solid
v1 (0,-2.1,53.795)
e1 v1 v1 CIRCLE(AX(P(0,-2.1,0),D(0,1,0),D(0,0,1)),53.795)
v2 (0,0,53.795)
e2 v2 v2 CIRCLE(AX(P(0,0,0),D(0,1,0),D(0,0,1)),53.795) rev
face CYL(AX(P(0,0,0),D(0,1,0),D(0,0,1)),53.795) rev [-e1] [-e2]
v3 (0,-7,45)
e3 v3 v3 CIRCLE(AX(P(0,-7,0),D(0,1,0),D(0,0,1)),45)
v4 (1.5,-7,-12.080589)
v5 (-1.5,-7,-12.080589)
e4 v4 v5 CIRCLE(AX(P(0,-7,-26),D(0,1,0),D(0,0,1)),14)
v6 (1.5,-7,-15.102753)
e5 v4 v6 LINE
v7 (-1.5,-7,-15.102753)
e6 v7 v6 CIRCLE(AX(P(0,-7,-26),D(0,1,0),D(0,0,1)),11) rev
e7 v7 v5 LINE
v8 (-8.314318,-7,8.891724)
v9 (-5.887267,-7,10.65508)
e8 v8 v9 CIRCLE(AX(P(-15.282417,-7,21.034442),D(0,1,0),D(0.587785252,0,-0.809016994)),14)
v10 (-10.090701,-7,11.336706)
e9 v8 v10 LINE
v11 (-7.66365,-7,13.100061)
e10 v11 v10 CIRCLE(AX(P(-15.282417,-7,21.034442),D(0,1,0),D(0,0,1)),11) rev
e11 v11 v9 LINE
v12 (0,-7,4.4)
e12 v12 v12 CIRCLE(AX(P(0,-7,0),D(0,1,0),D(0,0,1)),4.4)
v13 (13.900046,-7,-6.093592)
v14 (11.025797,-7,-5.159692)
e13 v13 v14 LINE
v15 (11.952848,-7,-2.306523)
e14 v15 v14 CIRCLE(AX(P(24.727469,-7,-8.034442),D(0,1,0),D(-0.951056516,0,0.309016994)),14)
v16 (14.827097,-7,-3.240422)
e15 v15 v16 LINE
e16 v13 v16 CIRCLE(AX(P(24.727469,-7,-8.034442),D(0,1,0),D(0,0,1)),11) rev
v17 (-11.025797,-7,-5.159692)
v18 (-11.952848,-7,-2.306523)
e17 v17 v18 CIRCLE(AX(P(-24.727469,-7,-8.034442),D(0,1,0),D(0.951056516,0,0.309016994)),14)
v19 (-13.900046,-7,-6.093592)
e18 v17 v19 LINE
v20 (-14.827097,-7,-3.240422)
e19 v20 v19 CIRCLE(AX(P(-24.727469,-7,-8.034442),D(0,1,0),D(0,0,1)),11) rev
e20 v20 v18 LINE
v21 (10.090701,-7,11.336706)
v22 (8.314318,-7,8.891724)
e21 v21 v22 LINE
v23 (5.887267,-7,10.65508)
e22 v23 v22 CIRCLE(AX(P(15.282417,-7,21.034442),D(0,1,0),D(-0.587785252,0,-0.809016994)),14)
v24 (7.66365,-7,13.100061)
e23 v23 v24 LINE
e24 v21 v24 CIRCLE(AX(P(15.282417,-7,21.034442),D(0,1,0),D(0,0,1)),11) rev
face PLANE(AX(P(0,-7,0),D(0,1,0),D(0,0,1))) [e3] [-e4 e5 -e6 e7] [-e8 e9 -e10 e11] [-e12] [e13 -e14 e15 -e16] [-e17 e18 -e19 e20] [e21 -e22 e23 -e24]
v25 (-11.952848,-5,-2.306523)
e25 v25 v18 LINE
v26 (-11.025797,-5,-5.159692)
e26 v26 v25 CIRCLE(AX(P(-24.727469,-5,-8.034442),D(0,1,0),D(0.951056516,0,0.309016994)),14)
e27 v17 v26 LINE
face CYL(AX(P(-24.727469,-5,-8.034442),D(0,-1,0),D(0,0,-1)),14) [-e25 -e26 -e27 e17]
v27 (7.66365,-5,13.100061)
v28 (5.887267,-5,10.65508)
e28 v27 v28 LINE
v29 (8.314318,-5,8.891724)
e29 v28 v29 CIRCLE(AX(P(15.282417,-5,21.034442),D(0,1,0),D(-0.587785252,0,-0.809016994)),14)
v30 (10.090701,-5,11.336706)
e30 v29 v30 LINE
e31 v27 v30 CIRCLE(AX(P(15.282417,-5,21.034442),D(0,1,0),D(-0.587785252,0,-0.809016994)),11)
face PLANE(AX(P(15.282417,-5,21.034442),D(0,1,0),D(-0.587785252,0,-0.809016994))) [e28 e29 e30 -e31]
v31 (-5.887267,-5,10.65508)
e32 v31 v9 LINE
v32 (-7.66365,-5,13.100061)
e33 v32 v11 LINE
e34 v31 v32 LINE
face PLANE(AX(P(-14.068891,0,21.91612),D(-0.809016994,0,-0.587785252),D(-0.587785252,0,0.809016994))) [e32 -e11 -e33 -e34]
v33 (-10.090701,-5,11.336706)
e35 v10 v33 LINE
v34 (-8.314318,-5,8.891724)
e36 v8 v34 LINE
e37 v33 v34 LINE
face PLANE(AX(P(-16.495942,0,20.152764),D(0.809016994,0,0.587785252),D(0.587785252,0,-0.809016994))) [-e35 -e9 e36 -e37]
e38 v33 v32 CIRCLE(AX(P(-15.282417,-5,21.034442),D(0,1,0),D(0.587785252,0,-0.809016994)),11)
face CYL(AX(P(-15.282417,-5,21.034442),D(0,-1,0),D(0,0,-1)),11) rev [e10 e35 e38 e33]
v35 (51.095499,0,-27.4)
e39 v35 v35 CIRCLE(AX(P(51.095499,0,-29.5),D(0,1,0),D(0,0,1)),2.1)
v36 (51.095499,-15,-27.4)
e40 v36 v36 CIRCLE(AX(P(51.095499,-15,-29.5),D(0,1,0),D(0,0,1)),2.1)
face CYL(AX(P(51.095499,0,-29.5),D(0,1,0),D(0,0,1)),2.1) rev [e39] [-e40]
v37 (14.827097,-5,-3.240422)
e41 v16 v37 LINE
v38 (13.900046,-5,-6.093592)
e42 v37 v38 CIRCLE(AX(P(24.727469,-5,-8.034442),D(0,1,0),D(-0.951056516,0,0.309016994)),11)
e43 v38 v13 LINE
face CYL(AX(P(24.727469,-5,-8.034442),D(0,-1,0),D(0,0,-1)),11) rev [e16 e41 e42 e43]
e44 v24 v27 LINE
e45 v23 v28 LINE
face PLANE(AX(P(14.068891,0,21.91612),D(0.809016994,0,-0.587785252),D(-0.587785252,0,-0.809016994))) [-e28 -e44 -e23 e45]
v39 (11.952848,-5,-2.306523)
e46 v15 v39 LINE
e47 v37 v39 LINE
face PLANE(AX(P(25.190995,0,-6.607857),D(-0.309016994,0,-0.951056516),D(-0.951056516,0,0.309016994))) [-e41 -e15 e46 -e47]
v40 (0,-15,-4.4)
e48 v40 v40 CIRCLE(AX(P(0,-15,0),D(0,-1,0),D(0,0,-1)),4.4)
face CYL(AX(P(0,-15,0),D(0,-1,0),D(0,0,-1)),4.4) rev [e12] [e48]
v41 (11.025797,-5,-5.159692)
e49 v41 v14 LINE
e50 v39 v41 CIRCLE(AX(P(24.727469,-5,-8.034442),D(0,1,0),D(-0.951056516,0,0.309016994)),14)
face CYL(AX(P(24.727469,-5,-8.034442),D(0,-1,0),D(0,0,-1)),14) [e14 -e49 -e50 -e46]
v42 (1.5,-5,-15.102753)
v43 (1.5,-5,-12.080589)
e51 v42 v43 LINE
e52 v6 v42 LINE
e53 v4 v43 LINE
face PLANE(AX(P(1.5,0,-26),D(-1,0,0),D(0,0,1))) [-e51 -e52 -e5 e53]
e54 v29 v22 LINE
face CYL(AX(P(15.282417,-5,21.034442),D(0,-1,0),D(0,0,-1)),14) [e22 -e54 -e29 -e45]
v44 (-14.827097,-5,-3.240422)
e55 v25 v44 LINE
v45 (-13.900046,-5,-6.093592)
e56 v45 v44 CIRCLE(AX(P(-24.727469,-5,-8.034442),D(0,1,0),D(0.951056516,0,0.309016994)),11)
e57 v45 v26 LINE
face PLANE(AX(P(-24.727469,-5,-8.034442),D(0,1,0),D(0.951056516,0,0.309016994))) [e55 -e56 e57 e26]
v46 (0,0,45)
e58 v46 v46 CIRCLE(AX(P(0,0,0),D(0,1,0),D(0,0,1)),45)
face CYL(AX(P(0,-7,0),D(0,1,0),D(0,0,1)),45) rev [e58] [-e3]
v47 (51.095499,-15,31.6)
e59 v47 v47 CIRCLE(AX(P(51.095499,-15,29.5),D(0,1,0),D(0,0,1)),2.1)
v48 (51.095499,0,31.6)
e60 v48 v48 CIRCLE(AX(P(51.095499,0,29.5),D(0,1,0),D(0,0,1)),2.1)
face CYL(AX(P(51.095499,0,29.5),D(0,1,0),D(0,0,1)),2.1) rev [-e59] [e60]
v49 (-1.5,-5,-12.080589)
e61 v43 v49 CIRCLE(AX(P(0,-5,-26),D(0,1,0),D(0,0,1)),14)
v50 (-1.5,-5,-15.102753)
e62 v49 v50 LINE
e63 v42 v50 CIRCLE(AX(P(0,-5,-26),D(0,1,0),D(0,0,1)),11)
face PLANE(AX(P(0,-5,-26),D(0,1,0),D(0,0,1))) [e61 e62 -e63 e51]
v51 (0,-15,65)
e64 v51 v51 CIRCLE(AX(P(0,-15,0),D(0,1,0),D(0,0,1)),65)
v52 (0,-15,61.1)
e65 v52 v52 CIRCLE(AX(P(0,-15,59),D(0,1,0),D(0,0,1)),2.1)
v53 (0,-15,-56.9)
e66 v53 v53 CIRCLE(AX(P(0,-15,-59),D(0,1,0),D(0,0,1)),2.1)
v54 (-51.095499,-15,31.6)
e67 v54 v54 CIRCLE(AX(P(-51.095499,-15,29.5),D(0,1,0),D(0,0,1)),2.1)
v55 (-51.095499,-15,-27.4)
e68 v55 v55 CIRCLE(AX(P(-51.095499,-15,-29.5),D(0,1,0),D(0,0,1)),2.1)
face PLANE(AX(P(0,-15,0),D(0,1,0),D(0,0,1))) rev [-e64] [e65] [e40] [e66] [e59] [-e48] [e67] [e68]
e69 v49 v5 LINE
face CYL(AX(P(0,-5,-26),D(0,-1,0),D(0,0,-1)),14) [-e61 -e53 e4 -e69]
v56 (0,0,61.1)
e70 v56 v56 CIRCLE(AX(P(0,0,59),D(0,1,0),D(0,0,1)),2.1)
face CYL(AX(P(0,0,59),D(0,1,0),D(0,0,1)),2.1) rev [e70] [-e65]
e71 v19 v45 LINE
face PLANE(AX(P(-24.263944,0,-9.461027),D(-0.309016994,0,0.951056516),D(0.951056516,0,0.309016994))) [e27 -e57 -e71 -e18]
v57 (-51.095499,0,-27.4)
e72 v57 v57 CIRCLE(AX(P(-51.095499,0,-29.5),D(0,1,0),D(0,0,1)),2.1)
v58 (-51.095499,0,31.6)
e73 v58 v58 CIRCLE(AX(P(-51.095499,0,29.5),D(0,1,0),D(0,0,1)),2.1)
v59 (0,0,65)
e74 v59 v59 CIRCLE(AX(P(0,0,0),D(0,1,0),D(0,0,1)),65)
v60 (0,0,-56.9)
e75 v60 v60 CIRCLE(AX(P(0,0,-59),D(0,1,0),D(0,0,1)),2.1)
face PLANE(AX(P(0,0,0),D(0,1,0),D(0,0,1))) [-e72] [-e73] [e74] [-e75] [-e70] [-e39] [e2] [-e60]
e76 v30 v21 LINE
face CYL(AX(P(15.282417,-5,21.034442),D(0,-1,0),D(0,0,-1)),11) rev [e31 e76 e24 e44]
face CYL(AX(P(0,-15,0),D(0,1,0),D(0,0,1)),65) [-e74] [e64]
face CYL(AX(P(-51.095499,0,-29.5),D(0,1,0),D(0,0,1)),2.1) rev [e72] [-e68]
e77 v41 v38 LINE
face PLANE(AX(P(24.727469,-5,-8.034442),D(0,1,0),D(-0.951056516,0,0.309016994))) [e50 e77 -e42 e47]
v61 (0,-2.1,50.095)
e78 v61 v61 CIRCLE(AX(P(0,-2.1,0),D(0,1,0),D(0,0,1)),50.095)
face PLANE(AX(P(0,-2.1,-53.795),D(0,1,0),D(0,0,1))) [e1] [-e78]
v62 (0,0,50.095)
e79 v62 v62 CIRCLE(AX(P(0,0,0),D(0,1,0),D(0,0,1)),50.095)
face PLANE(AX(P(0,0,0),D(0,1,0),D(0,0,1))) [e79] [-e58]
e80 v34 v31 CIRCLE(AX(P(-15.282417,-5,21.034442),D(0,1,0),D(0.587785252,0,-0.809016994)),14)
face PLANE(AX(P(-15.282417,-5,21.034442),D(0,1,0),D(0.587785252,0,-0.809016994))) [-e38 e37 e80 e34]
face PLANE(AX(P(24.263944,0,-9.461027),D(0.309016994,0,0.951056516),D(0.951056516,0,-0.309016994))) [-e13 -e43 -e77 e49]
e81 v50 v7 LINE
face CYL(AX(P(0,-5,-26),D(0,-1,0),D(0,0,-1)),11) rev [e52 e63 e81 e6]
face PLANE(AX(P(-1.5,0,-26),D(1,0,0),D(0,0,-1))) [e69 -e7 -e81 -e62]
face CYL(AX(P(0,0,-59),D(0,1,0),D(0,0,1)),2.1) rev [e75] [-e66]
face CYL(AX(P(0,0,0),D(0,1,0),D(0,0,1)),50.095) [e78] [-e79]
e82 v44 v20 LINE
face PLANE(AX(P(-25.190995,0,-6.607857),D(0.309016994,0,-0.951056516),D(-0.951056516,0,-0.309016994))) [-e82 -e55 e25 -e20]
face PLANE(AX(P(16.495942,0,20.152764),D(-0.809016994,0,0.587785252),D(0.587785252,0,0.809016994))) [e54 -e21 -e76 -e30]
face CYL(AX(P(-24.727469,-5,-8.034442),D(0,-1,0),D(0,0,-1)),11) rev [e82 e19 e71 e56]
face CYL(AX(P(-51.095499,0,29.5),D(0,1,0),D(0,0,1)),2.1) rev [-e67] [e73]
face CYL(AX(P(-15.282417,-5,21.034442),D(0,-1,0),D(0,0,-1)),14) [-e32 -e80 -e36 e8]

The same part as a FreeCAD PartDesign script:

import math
import FreeCAD as App
import Part
import Sketcher
from FreeCAD import Vector


def add_polygon(sketch, points):
    """Adds a closed chain of lines whose ends are joined by coincident constraints."""
    first, n = sketch.GeometryCount, len(points)
    for a, b in zip(points, points[1:] + points[:1]):
        sketch.addGeometry(Part.LineSegment(App.Vector(*a, 0), App.Vector(*b, 0)), False)
    for i in range(n):
        sketch.addConstraint(Sketcher.Constraint("Coincident", first + i, 2, first + (i + 1) % n, 1))

doc = App.newDocument("Part")
body = doc.addObject("PartDesign::Body", "Body")

# Sketch on XZ plane
sketch1 = body.newObject("Sketcher::SketchObject", "Sketch")
sketch1.AttachmentSupport = (doc.getObject("XZ_Plane"), [""])
sketch1.MapMode = "FlatFace"
sketch1.addGeometry(Part.Circle(Vector(0, 0, 0), Vector(0, 0, 1), 65), False)
sketch1.addConstraint([
    Sketcher.Constraint("Coincident", 0, 3, -1, 1),
    Sketcher.Constraint("Diameter", 0, 130.0),
])
pad1 = body.newObject("PartDesign::Pad", "Pad")
pad1.Profile = sketch1
pad1.Length = 15

# Sketch on XZ plane
sketch2 = body.newObject("Sketcher::SketchObject", "Sketch001")
sketch2.AttachmentSupport = (doc.getObject("XZ_Plane"), [""])
sketch2.MapMode = "FlatFace"
sketch2.addGeometry(Part.Circle(Vector(0, 0, 0), Vector(0, 0, 1), 45), False)
sketch2.addConstraint([
    Sketcher.Constraint("Coincident", 0, 3, -1, 1),
    Sketcher.Constraint("Diameter", 0, 90.0),
])
pocket1 = body.newObject("PartDesign::Pocket", "Pocket")
pocket1.Profile = sketch2
pocket1.Length = 7
pocket1.Reversed = True

# Sketch on XZ plane
sketch3 = body.newObject("Sketcher::SketchObject", "Sketch002")
sketch3.AttachmentSupport = (doc.getObject("XZ_Plane"), [""])
sketch3.MapMode = "FlatFace"
sketch3.AttachmentOffset = App.Placement(Vector(0, 0, 15), App.Rotation())
sketch3.addGeometry(Part.Circle(Vector(0, 0, 0), Vector(0, 0, 1), 4.4), False)
sketch3.addConstraint([
    Sketcher.Constraint("Coincident", 0, 3, -1, 1),
    Sketcher.Constraint("Diameter", 0, 8.8),
])
doc.recompute()
hole = body.newObject("PartDesign::Hole", "Hole")
hole.Profile = sketch3
hole.ThreadType = "None"
hole.Diameter = 8.8
hole.DepthType = "ThroughAll"

# Sketch on XZ plane
sketch4 = body.newObject("Sketcher::SketchObject", "Sketch003")
sketch4.AttachmentSupport = (doc.getObject("XZ_Plane"), [""])
sketch4.MapMode = "FlatFace"
sketch4.AttachmentOffset = App.Placement(Vector(0, 0, 7), App.Rotation())
sketch4.addGeometry([
    Part.Circle(Vector(0, -26, 0), Vector(0, 0, 1), 14),
    Part.Circle(Vector(0, -26, 0), Vector(0, 0, 1), 11),
], False)
sketch4.addConstraint([
    Sketcher.Constraint("Coincident", 1, 3, 0, 3),
    Sketcher.Constraint("PointOnObject", 0, 3, -2),
    Sketcher.Constraint("Diameter", 0, 28.0),
    Sketcher.Constraint("Diameter", 1, 22.0),
    Sketcher.Constraint("DistanceY", 0, 3, -1, 1, 26.0),
])
pad2 = body.newObject("PartDesign::Pad", "Pad001")
pad2.Profile = sketch4
pad2.Length = 2
pad2.Reversed = True

# Sketch on XZ plane
sketch5 = body.newObject("Sketcher::SketchObject", "Sketch004")
sketch5.AttachmentSupport = (doc.getObject("XZ_Plane"), [""])
sketch5.MapMode = "FlatFace"
sketch5.AttachmentOffset = App.Placement(Vector(0, 0, 7), App.Rotation())
sketch5.addGeometry([
    Part.LineSegment(Vector(1.5, -4.4, 0), Vector(1.5, -26, 0)),
    Part.ArcOfCircle(Part.Circle(Vector(0, -26, 0), Vector(0, 0, 1), 1.5), math.radians(180), math.radians(360)),
    Part.LineSegment(Vector(-1.5, -26, 0), Vector(-1.5, -4.4, 0)),
    Part.ArcOfCircle(Part.Circle(Vector(0, -4.4, 0), Vector(0, 0, 1), 1.5), math.radians(0), math.radians(180)),
], False)
sketch5.addConstraint([
    Sketcher.Constraint("Tangent", 0, 2, 1, 2),
    Sketcher.Constraint("Tangent", 1, 1, 2, 1),
    Sketcher.Constraint("Tangent", 2, 2, 3, 2),
    Sketcher.Constraint("Tangent", 3, 1, 0, 1),
    Sketcher.Constraint("Vertical", 0),
    Sketcher.Constraint("Vertical", 2),
    Sketcher.Constraint("PointOnObject", 1, 3, -2),
    Sketcher.Constraint("Radius", 1, 1.5),
    Sketcher.Constraint("DistanceY", 0, 2, 0, 1, 21.6),
    Sketcher.Constraint("DistanceY", 1, 3, -1, 1, 26.0),
])
pocket2 = body.newObject("PartDesign::Pocket", "Pocket001")
pocket2.Profile = sketch5
pocket2.Type = "ThroughAll"
doc.recompute()

polarpattern = body.newObject("PartDesign::PolarPattern", "PolarPattern")
polarpattern.Originals = [pad2, pocket2]
polarpattern.Axis = (doc.getObject("Y_Axis"), [""])
polarpattern.Angle = 360
polarpattern.Occurrences = 5
body.Tip = polarpattern

# Sketch on YZ plane
sketch6 = body.newObject("Sketcher::SketchObject", "Sketch005")
sketch6.AttachmentSupport = (doc.getObject("YZ_Plane"), [""])
sketch6.MapMode = "FlatFace"
add_polygon(sketch6, [(2.1, -50.1), (-2.1, -50.1), (-2.1, -53.8), (2.1, -53.8)])  # lines 0-3
sketch6.addConstraint([
    Sketcher.Constraint("Horizontal", 0),
    Sketcher.Constraint("Vertical", 1),
    Sketcher.Constraint("Horizontal", 2),
    Sketcher.Constraint("Vertical", 3),
    Sketcher.Constraint("DistanceX", 0, 2, 0, 1, 4.2),
    Sketcher.Constraint("DistanceY", 1, 2, 1, 1, 3.7),
    Sketcher.Constraint("DistanceX", 0, 2, -1, 1, 2.1),
    Sketcher.Constraint("DistanceY", 0, 2, -1, 1, 50.095),
])
groove = body.newObject("PartDesign::Groove", "Groove")
groove.Profile = sketch6
groove.ReferenceAxis = (sketch6, ["H_Axis"])
groove.Angle = 360

# Sketch on XZ plane
sketch7 = body.newObject("Sketcher::SketchObject", "Sketch006")
sketch7.AttachmentSupport = (doc.getObject("XZ_Plane"), [""])
sketch7.MapMode = "FlatFace"
sketch7.addGeometry(Part.Circle(Vector(0, -59, 0), Vector(0, 0, 1), 2.1), False)
sketch7.addConstraint([
    Sketcher.Constraint("PointOnObject", 0, 3, -2),
    Sketcher.Constraint("Diameter", 0, 4.2),
    Sketcher.Constraint("DistanceY", 0, 3, -1, 1, 59.0),
])
doc.recompute()
hole2 = body.newObject("PartDesign::Hole", "Hole001")
hole2.Profile = sketch7
hole2.ThreadType = "None"
hole2.Diameter = 4.2
hole2.DepthType = "ThroughAll"
hole2.Reversed = True
doc.recompute()

polarpattern2 = body.newObject("PartDesign::PolarPattern", "PolarPattern001")
polarpattern2.Originals = [hole2]
polarpattern2.Axis = (doc.getObject("Y_Axis"), [""])
polarpattern2.Angle = 360
polarpattern2.Occurrences = 6
body.Tip = polarpattern2

doc.recompute()
